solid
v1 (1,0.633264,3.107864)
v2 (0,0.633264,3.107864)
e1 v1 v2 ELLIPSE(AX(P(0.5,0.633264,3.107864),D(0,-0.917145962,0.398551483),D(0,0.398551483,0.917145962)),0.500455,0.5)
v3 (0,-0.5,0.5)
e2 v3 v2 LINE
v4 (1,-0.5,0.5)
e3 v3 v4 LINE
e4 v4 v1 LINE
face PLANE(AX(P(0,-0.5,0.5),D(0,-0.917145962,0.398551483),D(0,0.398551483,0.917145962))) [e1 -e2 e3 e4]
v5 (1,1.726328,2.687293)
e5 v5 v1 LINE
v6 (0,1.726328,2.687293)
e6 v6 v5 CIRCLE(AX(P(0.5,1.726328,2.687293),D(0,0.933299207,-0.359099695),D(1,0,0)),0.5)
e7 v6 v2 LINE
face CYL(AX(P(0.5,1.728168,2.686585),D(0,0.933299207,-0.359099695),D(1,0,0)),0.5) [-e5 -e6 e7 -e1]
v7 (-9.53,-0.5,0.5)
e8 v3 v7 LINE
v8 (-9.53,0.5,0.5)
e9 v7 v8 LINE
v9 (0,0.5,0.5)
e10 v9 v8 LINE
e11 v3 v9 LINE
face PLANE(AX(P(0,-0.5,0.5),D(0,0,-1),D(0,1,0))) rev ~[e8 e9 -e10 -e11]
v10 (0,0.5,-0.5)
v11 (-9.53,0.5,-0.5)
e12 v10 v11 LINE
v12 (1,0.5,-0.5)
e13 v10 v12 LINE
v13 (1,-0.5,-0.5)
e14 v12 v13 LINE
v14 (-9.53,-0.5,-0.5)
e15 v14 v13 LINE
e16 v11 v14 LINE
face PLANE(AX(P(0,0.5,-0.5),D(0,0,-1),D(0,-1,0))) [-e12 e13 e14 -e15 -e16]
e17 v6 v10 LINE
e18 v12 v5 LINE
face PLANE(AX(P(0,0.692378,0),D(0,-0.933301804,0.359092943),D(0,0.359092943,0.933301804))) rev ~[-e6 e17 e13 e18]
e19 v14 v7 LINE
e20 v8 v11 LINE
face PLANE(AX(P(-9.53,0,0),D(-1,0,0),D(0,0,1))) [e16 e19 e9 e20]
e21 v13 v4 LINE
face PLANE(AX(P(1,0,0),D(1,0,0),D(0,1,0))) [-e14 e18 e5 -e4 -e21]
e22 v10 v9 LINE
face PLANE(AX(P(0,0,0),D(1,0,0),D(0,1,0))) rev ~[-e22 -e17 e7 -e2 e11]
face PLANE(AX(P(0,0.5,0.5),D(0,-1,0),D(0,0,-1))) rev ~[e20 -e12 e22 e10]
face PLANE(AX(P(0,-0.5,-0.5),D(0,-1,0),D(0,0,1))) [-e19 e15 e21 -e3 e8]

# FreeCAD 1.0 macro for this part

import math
import FreeCAD as App
import Part
import Sketcher
Q = App.Units.Quantity

doc = App.newDocument("Part")
body = doc.addObject("PartDesign::Body", "Body")

# Sketch on YZ plane
sketch1 = body.newObject("Sketcher::SketchObject", "Sketch")
sketch1.AttachmentSupport = (doc.getObject("YZ_Plane"), [""])
sketch1.MapMode = "FlatFace"
sketch1.addGeometry(Part.LineSegment(App.Vector(2.2, 6.8, 0), App.Vector(-0.5, 0.5, 0)), False)
sketch1.addGeometry(Part.LineSegment(App.Vector(-0.5, 0.5, 0), App.Vector(-0.5, -0.5, 0)), False)
sketch1.addGeometry(Part.LineSegment(App.Vector(-0.5, -0.5, 0), App.Vector(0.5, -0.5, 0)), False)
sketch1.addGeometry(Part.LineSegment(App.Vector(0.5, -0.5, 0), App.Vector(3.2, 6.4, 0)), False)
sketch1.addGeometry(Part.ArcOfCircle(Part.Circle(App.Vector(2.7, 6.6, 0), App.Vector(0, 0, 1), 0.5), math.radians(-21), math.radians(157)), False)
sketch1.addConstraint(Sketcher.Constraint("Coincident", 0, 2, 1, 1))
sketch1.addConstraint(Sketcher.Constraint("Coincident", 1, 2, 2, 1))
sketch1.addConstraint(Sketcher.Constraint("Coincident", 2, 2, 3, 1))
sketch1.addConstraint(Sketcher.Constraint("Tangent", 3, 2, 4, 1))
sketch1.addConstraint(Sketcher.Constraint("Tangent", 4, 2, 0, 1))
sketch1.addConstraint(Sketcher.Constraint("Vertical", 1))
sketch1.addConstraint(Sketcher.Constraint("Horizontal", 2))
sketch1.addConstraint(Sketcher.Constraint("Symmetric", 0, 2, 2, 2, -1, 1))
sketch1.addConstraint(Sketcher.Constraint("Equal", 2, 1))
sketch1.addConstraint(Sketcher.Constraint("Radius", 4, Q("0.5 mm")))
sketch1.addConstraint(Sketcher.Constraint("DistanceX", 2, 1, 2, 2, Q("1 mm")))
sketch1.addConstraint(Sketcher.Constraint("DistanceY", -1, 1, 4, 3, Q("6.6 mm")))
sketch1.addConstraint(Sketcher.Constraint("DistanceX", -1, 1, 4, 3, Q("2.696 mm")))
pad1 = body.newObject("PartDesign::Pad", "Pad")
pad1.Profile = sketch1
pad1.Length = 1

# Sketch on YZ plane
sketch2 = body.newObject("Sketcher::SketchObject", "Sketch001")
sketch2.AttachmentSupport = (doc.getObject("YZ_Plane"), [""])
sketch2.MapMode = "FlatFace"
sketch2.addGeometry(Part.LineSegment(App.Vector(0.5, -0.5, 0), App.Vector(-0.5, -0.5, 0)), False)
sketch2.addGeometry(Part.LineSegment(App.Vector(-0.5, -0.5, 0), App.Vector(-0.5, 0.5, 0)), False)
sketch2.addGeometry(Part.LineSegment(App.Vector(-0.5, 0.5, 0), App.Vector(0.5, 0.5, 0)), False)
sketch2.addGeometry(Part.LineSegment(App.Vector(0.5, 0.5, 0), App.Vector(0.5, -0.5, 0)), False)
sketch2.addGeometry(Part.ArcOfCircle(Part.Circle(App.Vector(2.7, 6.6, 0), App.Vector(0, 0, 1), 0.5), math.radians(157), math.radians(339)), False)
sketch2.addGeometry(Part.ArcOfCircle(Part.Circle(App.Vector(2.7, 6.6, 0), App.Vector(0, 0, 1), 0.5), math.radians(-21), math.radians(157)), False)
sketch2.addConstraint(Sketcher.Constraint("Coincident", 0, 2, 1, 1))
sketch2.addConstraint(Sketcher.Constraint("Coincident", 1, 2, 2, 1))
sketch2.addConstraint(Sketcher.Constraint("Coincident", 2, 2, 3, 1))
sketch2.addConstraint(Sketcher.Constraint("Coincident", 3, 2, 0, 1))
sketch2.addConstraint(Sketcher.Constraint("Tangent", 4, 1, 5, 2))
sketch2.addConstraint(Sketcher.Constraint("Coincident", 5, 1, 4, 2))
sketch2.addConstraint(Sketcher.Constraint("Horizontal", 0))
sketch2.addConstraint(Sketcher.Constraint("Vertical", 1))
sketch2.addConstraint(Sketcher.Constraint("Horizontal", 2))
sketch2.addConstraint(Sketcher.Constraint("Vertical", 3))
sketch2.addConstraint(Sketcher.Constraint("Symmetric", 0, 2, 2, 2, -1, 1))
sketch2.addConstraint(Sketcher.Constraint("Equal", 2, 1))
sketch2.addConstraint(Sketcher.Constraint("Radius", 4, Q("0.5 mm")))
sketch2.addConstraint(Sketcher.Constraint("DistanceX", 0, 2, 0, 1, Q("1 mm")))
sketch2.addConstraint(Sketcher.Constraint("DistanceY", -1, 1, 4, 3, Q("6.6 mm")))
sketch2.addConstraint(Sketcher.Constraint("DistanceX", -1, 1, 4, 3, Q("2.696 mm")))
sketch2.addConstraint(Sketcher.Constraint("DistanceX", -1, 1, 4, 1, Q("2.2374 mm")))
sketch2.addConstraint(Sketcher.Constraint("DistanceX", -1, 1, 5, 1, Q("3.1627 mm")))
pad2 = body.newObject("PartDesign::Pad", "Pad001")
pad2.Profile = sketch2
pad2.Length = 9.53
pad2.Reversed = True

# Sketch on an angled plane
sketch3 = body.newObject("Sketcher::SketchObject", "Sketch002")
sketch3.Placement = App.Placement(App.Vector(0, 3.1627, 6.4205), App.Rotation(App.Vector(1, 0, 0), App.Vector(0, -0.359099695, -0.933299207), App.Vector(0, 0.933299207, -0.359099695), "ZXY"))
sketch3.addGeometry(Part.LineSegment(App.Vector(2, 2.6, 0), App.Vector(1, 4, 0)), False)
sketch3.addGeometry(Part.ArcOfCircle(Part.Circle(App.Vector(0.5, 4, 0), App.Vector(0, 0, 1), 0.5), math.radians(180), math.radians(360)), False)
sketch3.addGeometry(Part.LineSegment(App.Vector(0, 4, 0), App.Vector(-5.4, 3.2, 0)), False)
sketch3.addGeometry(Part.LineSegment(App.Vector(-5.4, 3.2, 0), App.Vector(-10.7, 1.4, 0)), False)
sketch3.addGeometry(Part.LineSegment(App.Vector(-10.7, 1.4, 0), App.Vector(-10.3, -1.4, 0)), False)
sketch3.addGeometry(Part.LineSegment(App.Vector(-10.3, -1.4, 0), App.Vector(-6.1, -1.7, 0)), False)
sketch3.addGeometry(Part.LineSegment(App.Vector(-6.1, -1.7, 0), App.Vector(1.4, -1.4, 0)), False)
sketch3.addGeometry(Part.LineSegment(App.Vector(1.4, -1.4, 0), App.Vector(2, -0.5, 0)), False)
sketch3.addGeometry(Part.LineSegment(App.Vector(2, -0.5, 0), App.Vector(2, 2.6, 0)), False)
sketch3.addConstraint(Sketcher.Constraint("Coincident", 0, 2, 1, 2))
sketch3.addConstraint(Sketcher.Constraint("Coincident", 1, 1, 2, 1))
sketch3.addConstraint(Sketcher.Constraint("Coincident", 2, 2, 3, 1))
sketch3.addConstraint(Sketcher.Constraint("Coincident", 3, 2, 4, 1))
sketch3.addConstraint(Sketcher.Constraint("Coincident", 4, 2, 5, 1))
sketch3.addConstraint(Sketcher.Constraint("Coincident", 5, 2, 6, 1))
sketch3.addConstraint(Sketcher.Constraint("Coincident", 6, 2, 7, 1))
sketch3.addConstraint(Sketcher.Constraint("Coincident", 7, 2, 8, 1))
sketch3.addConstraint(Sketcher.Constraint("Coincident", 8, 2, 0, 1))
sketch3.addConstraint(Sketcher.Constraint("Vertical", 8))
sketch3.addConstraint(Sketcher.Constraint("PointOnObject", 1, 1, -2))
sketch3.addConstraint(Sketcher.Constraint("Horizontal", 1, 3, 0, 2))
sketch3.addConstraint(Sketcher.Constraint("Horizontal", 0, 2, 1, 1))
sketch3.addConstraint(Sketcher.Constraint("DistanceY", -1, 1, 1, 3, Q("4 mm")))
sketch3.addConstraint(Sketcher.Constraint("Radius", 1, Q("0.5 mm")))
sketch3.addConstraint(Sketcher.Constraint("Angle", 6, Q("2.079 deg")))
sketch3.addConstraint(Sketcher.Constraint("DistanceY", 5, 2, 7, 2, Q("1.2 mm")))
sketch3.addConstraint(Sketcher.Constraint("Distance", 4, Q("2.838 mm")))
sketch3.addConstraint(Sketcher.Constraint("Distance", 6, Q("7.506 mm")))
sketch3.addConstraint(Sketcher.Constraint("Distance", 7, Q("1.087 mm")))
sketch3.addConstraint(Sketcher.Constraint("DistanceY", 8, 1, 8, 2, Q("3.0696 mm")))
sketch3.addConstraint(Sketcher.Constraint("DistanceX", 3, 2, -1, 1, Q("10.659 mm")))
sketch3.addConstraint(Sketcher.Constraint("DistanceY", -1, 1, 3, 2, Q("1.386 mm")))
sketch3.addConstraint(Sketcher.Constraint("DistanceX", 4, 2, -1, 1, Q("10.335 mm")))
sketch3.addConstraint(Sketcher.Constraint("DistanceY", 5, 2, -1, 1, Q("1.669 mm")))
sketch3.addConstraint(Sketcher.Constraint("DistanceX", 4, 2, 2, 2, Q("4.969 mm")))
sketch3.addConstraint(Sketcher.Constraint("DistanceX", 5, 2, 2, 2, Q("0.736 mm")))
sketch3.addConstraint(Sketcher.Constraint("DistanceY", 5, 2, 2, 2, Q("4.851 mm")))
pocket1 = body.newObject("PartDesign::Pocket", "Pocket")
pocket1.Profile = sketch3
pocket1.Length = 10

doc.recompute()
